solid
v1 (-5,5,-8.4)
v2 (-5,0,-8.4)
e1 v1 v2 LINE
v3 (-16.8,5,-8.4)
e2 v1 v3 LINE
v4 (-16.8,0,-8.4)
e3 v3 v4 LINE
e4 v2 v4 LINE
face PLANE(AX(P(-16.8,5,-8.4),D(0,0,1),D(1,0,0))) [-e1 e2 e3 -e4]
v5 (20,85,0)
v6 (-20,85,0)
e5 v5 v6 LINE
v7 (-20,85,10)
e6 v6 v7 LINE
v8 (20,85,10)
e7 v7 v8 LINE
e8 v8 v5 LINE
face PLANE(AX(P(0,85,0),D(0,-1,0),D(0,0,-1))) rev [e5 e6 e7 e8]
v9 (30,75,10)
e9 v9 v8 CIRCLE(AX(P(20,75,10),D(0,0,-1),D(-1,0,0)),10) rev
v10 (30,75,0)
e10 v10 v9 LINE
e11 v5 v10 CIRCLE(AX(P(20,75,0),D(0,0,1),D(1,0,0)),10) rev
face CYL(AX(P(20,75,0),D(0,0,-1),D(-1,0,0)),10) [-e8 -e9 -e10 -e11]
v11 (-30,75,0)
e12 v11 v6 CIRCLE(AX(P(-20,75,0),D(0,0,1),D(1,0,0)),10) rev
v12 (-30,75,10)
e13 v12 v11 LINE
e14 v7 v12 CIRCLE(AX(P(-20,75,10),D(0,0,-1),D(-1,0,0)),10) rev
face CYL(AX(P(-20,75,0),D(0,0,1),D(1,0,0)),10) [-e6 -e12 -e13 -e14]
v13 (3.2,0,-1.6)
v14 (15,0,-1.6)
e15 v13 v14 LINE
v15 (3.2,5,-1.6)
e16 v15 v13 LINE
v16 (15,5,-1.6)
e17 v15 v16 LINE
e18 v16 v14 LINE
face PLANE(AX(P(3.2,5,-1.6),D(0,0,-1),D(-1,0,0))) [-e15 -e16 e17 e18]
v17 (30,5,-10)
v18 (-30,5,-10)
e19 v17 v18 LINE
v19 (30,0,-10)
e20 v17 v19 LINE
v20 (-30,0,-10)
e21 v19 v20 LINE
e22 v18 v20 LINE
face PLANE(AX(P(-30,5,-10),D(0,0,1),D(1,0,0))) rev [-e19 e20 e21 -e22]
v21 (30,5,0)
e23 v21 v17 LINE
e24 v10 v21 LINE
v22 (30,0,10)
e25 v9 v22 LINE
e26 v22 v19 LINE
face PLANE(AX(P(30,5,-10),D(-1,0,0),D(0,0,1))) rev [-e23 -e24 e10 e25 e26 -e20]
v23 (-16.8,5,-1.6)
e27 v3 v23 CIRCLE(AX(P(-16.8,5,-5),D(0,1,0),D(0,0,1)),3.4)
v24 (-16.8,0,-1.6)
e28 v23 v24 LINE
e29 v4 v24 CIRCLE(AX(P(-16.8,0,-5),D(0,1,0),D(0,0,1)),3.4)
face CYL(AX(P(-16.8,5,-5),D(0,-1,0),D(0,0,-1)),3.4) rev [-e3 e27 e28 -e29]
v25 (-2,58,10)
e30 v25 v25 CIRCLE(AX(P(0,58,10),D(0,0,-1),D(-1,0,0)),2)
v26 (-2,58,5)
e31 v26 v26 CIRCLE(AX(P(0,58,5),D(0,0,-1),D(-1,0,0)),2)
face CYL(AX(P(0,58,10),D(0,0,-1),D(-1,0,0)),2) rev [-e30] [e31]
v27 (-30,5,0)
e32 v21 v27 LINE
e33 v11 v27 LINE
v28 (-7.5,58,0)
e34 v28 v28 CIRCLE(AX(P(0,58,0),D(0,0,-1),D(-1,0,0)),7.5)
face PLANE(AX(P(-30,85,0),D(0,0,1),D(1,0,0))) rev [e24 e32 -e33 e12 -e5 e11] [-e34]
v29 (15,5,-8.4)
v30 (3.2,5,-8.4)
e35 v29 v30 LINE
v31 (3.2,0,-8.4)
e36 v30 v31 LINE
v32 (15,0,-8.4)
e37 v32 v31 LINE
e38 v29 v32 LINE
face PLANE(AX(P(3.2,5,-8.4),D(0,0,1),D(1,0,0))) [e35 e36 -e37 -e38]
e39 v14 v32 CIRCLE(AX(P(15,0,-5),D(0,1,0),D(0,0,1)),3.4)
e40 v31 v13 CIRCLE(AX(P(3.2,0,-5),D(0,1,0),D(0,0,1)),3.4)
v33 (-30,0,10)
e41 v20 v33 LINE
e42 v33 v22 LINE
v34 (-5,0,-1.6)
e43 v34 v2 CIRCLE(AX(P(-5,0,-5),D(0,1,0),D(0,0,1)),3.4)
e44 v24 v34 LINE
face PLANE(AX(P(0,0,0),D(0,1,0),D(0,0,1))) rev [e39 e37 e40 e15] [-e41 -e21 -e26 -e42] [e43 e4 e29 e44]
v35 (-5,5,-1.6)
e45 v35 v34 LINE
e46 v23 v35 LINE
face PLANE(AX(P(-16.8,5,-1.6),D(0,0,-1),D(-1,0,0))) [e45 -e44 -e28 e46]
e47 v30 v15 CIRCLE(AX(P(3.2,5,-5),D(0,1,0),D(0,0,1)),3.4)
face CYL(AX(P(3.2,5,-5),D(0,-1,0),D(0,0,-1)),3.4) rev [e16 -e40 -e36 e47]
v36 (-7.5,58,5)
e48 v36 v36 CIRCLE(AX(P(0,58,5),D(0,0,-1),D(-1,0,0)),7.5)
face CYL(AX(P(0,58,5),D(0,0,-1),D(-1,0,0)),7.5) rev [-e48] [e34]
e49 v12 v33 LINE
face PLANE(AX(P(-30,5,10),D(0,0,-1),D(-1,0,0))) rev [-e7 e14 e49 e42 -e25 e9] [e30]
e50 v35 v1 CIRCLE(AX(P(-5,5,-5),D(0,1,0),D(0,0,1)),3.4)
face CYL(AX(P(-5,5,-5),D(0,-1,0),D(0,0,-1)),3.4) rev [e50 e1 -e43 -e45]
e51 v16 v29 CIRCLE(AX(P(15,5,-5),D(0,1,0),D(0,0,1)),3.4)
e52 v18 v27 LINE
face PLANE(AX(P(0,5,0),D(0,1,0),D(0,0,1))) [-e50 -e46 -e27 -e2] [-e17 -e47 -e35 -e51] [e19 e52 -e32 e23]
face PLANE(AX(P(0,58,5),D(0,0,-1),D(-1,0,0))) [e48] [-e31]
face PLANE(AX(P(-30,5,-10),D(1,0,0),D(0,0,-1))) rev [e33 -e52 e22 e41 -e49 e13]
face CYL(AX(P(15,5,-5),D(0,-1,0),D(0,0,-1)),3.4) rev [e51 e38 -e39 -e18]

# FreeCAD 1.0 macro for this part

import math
import FreeCAD as App
import Part
import Sketcher
from FreeCAD import Vector


def edges_at(feature, points):
    """Names of the edges that pass closest to the given points."""
    edges = feature.Shape.Edges
    near = lambda p: min(range(len(edges)), key=lambda i: edges[i].distToShape(Part.Vertex(*p))[0])
    return sorted({f"Edge{near(p) + 1}" for p in points})

doc = App.newDocument("Part")
body = doc.addObject("PartDesign::Body", "Body")

# Sketch on XZ plane
sketch1 = body.newObject("Sketcher::SketchObject", "Sketch")
sketch1.AttachmentSupport = (doc.getObject("XZ_Plane"), [""])
sketch1.MapMode = "FlatFace"
sketch1.addGeometry(Part.LineSegment(Vector(-30, -10, 0), Vector(-30, 10, 0)), False)
sketch1.addGeometry(Part.LineSegment(Vector(-30, 10, 0), Vector(30, 10, 0)), False)
sketch1.addGeometry(Part.LineSegment(Vector(30, 10, 0), Vector(30, -10, 0)), False)
sketch1.addGeometry(Part.LineSegment(Vector(30, -10, 0), Vector(-30, -10, 0)), False)
sketch1.addGeometry(Part.ArcOfCircle(Part.Circle(Vector(-16.8, -5, 0), Vector(0, 0, 1), 3.4), math.radians(90), math.radians(270)), False)
sketch1.addGeometry(Part.LineSegment(Vector(-16.8, -8.4, 0), Vector(-5, -8.4, 0)), False)
sketch1.addGeometry(Part.ArcOfCircle(Part.Circle(Vector(-5, -5, 0), Vector(0, 0, 1), 3.4), math.radians(-90), math.radians(90)), False)
sketch1.addGeometry(Part.LineSegment(Vector(-5, -1.6, 0), Vector(-16.8, -1.6, 0)), False)
sketch1.addGeometry(Part.ArcOfCircle(Part.Circle(Vector(3.2, -5, 0), Vector(0, 0, 1), 3.4), math.radians(90), math.radians(270)), False)
sketch1.addGeometry(Part.LineSegment(Vector(3.2, -8.4, 0), Vector(15, -8.4, 0)), False)
sketch1.addGeometry(Part.ArcOfCircle(Part.Circle(Vector(15, -5, 0), Vector(0, 0, 1), 3.4), math.radians(-90), math.radians(90)), False)
sketch1.addGeometry(Part.LineSegment(Vector(15, -1.6, 0), Vector(3.2, -1.6, 0)), False)
sketch1.addConstraint(Sketcher.Constraint("Coincident", 0, 2, 1, 1))
sketch1.addConstraint(Sketcher.Constraint("Coincident", 1, 2, 2, 1))
sketch1.addConstraint(Sketcher.Constraint("Coincident", 2, 2, 3, 1))
sketch1.addConstraint(Sketcher.Constraint("Coincident", 3, 2, 0, 1))
sketch1.addConstraint(Sketcher.Constraint("Tangent", 4, 2, 5, 1))
sketch1.addConstraint(Sketcher.Constraint("Tangent", 5, 2, 6, 1))
sketch1.addConstraint(Sketcher.Constraint("Tangent", 6, 2, 7, 1))
sketch1.addConstraint(Sketcher.Constraint("Tangent", 7, 2, 4, 1))
sketch1.addConstraint(Sketcher.Constraint("Tangent", 8, 2, 9, 1))
sketch1.addConstraint(Sketcher.Constraint("Tangent", 9, 2, 10, 1))
sketch1.addConstraint(Sketcher.Constraint("Tangent", 10, 2, 11, 1))
sketch1.addConstraint(Sketcher.Constraint("Tangent", 11, 2, 8, 1))
sketch1.addConstraint(Sketcher.Constraint("Vertical", 0))
sketch1.addConstraint(Sketcher.Constraint("Horizontal", 1))
sketch1.addConstraint(Sketcher.Constraint("Vertical", 2))
sketch1.addConstraint(Sketcher.Constraint("Horizontal", 3))
sketch1.addConstraint(Sketcher.Constraint("Horizontal", 5))
sketch1.addConstraint(Sketcher.Constraint("Horizontal", 7))
sketch1.addConstraint(Sketcher.Constraint("Horizontal", 9))
sketch1.addConstraint(Sketcher.Constraint("Horizontal", 11))
sketch1.addConstraint(Sketcher.Constraint("Equal", 6, 8))
sketch1.addConstraint(Sketcher.Constraint("Symmetric", 0, 2, 2, 2, -1, 1))
sketch1.addConstraint(Sketcher.Constraint("Horizontal", 6, 3, 8, 3))
sketch1.addConstraint(Sketcher.Constraint("Equal", 7, 9))
sketch1.addConstraint(Sketcher.Constraint("Radius", 4, 3.4))
sketch1.addConstraint(Sketcher.Constraint("DistanceX", 1, 1, 1, 2, 60.0))
sketch1.addConstraint(Sketcher.Constraint("DistanceY", 0, 1, 0, 2, 20.0))
sketch1.addConstraint(Sketcher.Constraint("DistanceX", 5, 1, 5, 2, 11.8))
sketch1.addConstraint(Sketcher.Constraint("DistanceY", 4, 3, -1, 1, 5.0))
sketch1.addConstraint(Sketcher.Constraint("DistanceX", 6, 3, -1, 1, 5.0))
sketch1.addConstraint(Sketcher.Constraint("DistanceX", -1, 1, 10, 3, 15.0))
pad1 = body.newObject("PartDesign::Pad", "Pad")
pad1.Profile = sketch1
pad1.Length = 5
pad1.Reversed = True

# Sketch on XZ plane
sketch2 = body.newObject("Sketcher::SketchObject", "Sketch001")
sketch2.AttachmentSupport = (doc.getObject("XZ_Plane"), [""])
sketch2.MapMode = "FlatFace"
sketch2.AttachmentOffset = App.Placement(Vector(0, 0, -5), App.Rotation())
sketch2.addGeometry(Part.LineSegment(Vector(-30, 0, 0), Vector(-30, 10, 0)), False)
sketch2.addGeometry(Part.LineSegment(Vector(-30, 10, 0), Vector(30, 10, 0)), False)
sketch2.addGeometry(Part.LineSegment(Vector(30, 10, 0), Vector(30, 0, 0)), False)
sketch2.addGeometry(Part.LineSegment(Vector(30, 0, 0), Vector(-30, 0, 0)), False)
sketch2.addConstraint(Sketcher.Constraint("Coincident", 0, 2, 1, 1))
sketch2.addConstraint(Sketcher.Constraint("Coincident", 1, 2, 2, 1))
sketch2.addConstraint(Sketcher.Constraint("Coincident", 2, 2, 3, 1))
sketch2.addConstraint(Sketcher.Constraint("Coincident", 3, 2, 0, 1))
sketch2.addConstraint(Sketcher.Constraint("Vertical", 0))
sketch2.addConstraint(Sketcher.Constraint("Horizontal", 1))
sketch2.addConstraint(Sketcher.Constraint("Vertical", 2))
sketch2.addConstraint(Sketcher.Constraint("Horizontal", 3))
sketch2.addConstraint(Sketcher.Constraint("Symmetric", 2, 2, 3, 2, -1, 1))
sketch2.addConstraint(Sketcher.Constraint("DistanceX", 1, 1, 1, 2, 60.0))
sketch2.addConstraint(Sketcher.Constraint("DistanceY", 0, 1, 0, 2, 10.0))
pad2 = body.newObject("PartDesign::Pad", "Pad001")
pad2.Profile = sketch2
pad2.Length = 80
pad2.Reversed = True

# Sketch on XY plane
sketch3 = body.newObject("Sketcher::SketchObject", "Sketch002")
sketch3.AttachmentSupport = (doc.getObject("XY_Plane"), [""])
sketch3.MapMode = "FlatFace"
sketch3.addGeometry(Part.Circle(Vector(0, 58, 0), Vector(0, 0, 1), 8), False)
sketch3.addConstraint(Sketcher.Constraint("PointOnObject", 0, 3, -2))
sketch3.addConstraint(Sketcher.Constraint("Diameter", 0, 15.0))
sketch3.addConstraint(Sketcher.Constraint("DistanceY", -1, 1, 0, 3, 58.0))
pocket1 = body.newObject("PartDesign::Pocket", "Pocket")
pocket1.Profile = sketch3
pocket1.Length = 5
pocket1.Reversed = True
doc.recompute()

fillet = body.newObject("PartDesign::Fillet", "Fillet")
fillet.Base = (pocket1, edges_at(pocket1, [(30, 85, 5), (-30, 85, 5)]))
fillet.Radius = 10

# Sketch on XY plane
sketch4 = body.newObject("Sketcher::SketchObject", "Sketch003")
sketch4.AttachmentSupport = (doc.getObject("XY_Plane"), [""])
sketch4.MapMode = "FlatFace"
sketch4.AttachmentOffset = App.Placement(Vector(0, 0, 5), App.Rotation())
sketch4.addGeometry(Part.Circle(Vector(0, 58, 0), Vector(0, 0, 1), 2), False)
sketch4.addConstraint(Sketcher.Constraint("PointOnObject", 0, 3, -2))
sketch4.addConstraint(Sketcher.Constraint("Diameter", 0, 4.0))
sketch4.addConstraint(Sketcher.Constraint("DistanceY", -1, 1, 0, 3, 58.0))
pocket2 = body.newObject("PartDesign::Pocket", "Pocket001")
pocket2.Profile = sketch4
pocket2.Type = "ThroughAll"
pocket2.Reversed = True

doc.recompute()
